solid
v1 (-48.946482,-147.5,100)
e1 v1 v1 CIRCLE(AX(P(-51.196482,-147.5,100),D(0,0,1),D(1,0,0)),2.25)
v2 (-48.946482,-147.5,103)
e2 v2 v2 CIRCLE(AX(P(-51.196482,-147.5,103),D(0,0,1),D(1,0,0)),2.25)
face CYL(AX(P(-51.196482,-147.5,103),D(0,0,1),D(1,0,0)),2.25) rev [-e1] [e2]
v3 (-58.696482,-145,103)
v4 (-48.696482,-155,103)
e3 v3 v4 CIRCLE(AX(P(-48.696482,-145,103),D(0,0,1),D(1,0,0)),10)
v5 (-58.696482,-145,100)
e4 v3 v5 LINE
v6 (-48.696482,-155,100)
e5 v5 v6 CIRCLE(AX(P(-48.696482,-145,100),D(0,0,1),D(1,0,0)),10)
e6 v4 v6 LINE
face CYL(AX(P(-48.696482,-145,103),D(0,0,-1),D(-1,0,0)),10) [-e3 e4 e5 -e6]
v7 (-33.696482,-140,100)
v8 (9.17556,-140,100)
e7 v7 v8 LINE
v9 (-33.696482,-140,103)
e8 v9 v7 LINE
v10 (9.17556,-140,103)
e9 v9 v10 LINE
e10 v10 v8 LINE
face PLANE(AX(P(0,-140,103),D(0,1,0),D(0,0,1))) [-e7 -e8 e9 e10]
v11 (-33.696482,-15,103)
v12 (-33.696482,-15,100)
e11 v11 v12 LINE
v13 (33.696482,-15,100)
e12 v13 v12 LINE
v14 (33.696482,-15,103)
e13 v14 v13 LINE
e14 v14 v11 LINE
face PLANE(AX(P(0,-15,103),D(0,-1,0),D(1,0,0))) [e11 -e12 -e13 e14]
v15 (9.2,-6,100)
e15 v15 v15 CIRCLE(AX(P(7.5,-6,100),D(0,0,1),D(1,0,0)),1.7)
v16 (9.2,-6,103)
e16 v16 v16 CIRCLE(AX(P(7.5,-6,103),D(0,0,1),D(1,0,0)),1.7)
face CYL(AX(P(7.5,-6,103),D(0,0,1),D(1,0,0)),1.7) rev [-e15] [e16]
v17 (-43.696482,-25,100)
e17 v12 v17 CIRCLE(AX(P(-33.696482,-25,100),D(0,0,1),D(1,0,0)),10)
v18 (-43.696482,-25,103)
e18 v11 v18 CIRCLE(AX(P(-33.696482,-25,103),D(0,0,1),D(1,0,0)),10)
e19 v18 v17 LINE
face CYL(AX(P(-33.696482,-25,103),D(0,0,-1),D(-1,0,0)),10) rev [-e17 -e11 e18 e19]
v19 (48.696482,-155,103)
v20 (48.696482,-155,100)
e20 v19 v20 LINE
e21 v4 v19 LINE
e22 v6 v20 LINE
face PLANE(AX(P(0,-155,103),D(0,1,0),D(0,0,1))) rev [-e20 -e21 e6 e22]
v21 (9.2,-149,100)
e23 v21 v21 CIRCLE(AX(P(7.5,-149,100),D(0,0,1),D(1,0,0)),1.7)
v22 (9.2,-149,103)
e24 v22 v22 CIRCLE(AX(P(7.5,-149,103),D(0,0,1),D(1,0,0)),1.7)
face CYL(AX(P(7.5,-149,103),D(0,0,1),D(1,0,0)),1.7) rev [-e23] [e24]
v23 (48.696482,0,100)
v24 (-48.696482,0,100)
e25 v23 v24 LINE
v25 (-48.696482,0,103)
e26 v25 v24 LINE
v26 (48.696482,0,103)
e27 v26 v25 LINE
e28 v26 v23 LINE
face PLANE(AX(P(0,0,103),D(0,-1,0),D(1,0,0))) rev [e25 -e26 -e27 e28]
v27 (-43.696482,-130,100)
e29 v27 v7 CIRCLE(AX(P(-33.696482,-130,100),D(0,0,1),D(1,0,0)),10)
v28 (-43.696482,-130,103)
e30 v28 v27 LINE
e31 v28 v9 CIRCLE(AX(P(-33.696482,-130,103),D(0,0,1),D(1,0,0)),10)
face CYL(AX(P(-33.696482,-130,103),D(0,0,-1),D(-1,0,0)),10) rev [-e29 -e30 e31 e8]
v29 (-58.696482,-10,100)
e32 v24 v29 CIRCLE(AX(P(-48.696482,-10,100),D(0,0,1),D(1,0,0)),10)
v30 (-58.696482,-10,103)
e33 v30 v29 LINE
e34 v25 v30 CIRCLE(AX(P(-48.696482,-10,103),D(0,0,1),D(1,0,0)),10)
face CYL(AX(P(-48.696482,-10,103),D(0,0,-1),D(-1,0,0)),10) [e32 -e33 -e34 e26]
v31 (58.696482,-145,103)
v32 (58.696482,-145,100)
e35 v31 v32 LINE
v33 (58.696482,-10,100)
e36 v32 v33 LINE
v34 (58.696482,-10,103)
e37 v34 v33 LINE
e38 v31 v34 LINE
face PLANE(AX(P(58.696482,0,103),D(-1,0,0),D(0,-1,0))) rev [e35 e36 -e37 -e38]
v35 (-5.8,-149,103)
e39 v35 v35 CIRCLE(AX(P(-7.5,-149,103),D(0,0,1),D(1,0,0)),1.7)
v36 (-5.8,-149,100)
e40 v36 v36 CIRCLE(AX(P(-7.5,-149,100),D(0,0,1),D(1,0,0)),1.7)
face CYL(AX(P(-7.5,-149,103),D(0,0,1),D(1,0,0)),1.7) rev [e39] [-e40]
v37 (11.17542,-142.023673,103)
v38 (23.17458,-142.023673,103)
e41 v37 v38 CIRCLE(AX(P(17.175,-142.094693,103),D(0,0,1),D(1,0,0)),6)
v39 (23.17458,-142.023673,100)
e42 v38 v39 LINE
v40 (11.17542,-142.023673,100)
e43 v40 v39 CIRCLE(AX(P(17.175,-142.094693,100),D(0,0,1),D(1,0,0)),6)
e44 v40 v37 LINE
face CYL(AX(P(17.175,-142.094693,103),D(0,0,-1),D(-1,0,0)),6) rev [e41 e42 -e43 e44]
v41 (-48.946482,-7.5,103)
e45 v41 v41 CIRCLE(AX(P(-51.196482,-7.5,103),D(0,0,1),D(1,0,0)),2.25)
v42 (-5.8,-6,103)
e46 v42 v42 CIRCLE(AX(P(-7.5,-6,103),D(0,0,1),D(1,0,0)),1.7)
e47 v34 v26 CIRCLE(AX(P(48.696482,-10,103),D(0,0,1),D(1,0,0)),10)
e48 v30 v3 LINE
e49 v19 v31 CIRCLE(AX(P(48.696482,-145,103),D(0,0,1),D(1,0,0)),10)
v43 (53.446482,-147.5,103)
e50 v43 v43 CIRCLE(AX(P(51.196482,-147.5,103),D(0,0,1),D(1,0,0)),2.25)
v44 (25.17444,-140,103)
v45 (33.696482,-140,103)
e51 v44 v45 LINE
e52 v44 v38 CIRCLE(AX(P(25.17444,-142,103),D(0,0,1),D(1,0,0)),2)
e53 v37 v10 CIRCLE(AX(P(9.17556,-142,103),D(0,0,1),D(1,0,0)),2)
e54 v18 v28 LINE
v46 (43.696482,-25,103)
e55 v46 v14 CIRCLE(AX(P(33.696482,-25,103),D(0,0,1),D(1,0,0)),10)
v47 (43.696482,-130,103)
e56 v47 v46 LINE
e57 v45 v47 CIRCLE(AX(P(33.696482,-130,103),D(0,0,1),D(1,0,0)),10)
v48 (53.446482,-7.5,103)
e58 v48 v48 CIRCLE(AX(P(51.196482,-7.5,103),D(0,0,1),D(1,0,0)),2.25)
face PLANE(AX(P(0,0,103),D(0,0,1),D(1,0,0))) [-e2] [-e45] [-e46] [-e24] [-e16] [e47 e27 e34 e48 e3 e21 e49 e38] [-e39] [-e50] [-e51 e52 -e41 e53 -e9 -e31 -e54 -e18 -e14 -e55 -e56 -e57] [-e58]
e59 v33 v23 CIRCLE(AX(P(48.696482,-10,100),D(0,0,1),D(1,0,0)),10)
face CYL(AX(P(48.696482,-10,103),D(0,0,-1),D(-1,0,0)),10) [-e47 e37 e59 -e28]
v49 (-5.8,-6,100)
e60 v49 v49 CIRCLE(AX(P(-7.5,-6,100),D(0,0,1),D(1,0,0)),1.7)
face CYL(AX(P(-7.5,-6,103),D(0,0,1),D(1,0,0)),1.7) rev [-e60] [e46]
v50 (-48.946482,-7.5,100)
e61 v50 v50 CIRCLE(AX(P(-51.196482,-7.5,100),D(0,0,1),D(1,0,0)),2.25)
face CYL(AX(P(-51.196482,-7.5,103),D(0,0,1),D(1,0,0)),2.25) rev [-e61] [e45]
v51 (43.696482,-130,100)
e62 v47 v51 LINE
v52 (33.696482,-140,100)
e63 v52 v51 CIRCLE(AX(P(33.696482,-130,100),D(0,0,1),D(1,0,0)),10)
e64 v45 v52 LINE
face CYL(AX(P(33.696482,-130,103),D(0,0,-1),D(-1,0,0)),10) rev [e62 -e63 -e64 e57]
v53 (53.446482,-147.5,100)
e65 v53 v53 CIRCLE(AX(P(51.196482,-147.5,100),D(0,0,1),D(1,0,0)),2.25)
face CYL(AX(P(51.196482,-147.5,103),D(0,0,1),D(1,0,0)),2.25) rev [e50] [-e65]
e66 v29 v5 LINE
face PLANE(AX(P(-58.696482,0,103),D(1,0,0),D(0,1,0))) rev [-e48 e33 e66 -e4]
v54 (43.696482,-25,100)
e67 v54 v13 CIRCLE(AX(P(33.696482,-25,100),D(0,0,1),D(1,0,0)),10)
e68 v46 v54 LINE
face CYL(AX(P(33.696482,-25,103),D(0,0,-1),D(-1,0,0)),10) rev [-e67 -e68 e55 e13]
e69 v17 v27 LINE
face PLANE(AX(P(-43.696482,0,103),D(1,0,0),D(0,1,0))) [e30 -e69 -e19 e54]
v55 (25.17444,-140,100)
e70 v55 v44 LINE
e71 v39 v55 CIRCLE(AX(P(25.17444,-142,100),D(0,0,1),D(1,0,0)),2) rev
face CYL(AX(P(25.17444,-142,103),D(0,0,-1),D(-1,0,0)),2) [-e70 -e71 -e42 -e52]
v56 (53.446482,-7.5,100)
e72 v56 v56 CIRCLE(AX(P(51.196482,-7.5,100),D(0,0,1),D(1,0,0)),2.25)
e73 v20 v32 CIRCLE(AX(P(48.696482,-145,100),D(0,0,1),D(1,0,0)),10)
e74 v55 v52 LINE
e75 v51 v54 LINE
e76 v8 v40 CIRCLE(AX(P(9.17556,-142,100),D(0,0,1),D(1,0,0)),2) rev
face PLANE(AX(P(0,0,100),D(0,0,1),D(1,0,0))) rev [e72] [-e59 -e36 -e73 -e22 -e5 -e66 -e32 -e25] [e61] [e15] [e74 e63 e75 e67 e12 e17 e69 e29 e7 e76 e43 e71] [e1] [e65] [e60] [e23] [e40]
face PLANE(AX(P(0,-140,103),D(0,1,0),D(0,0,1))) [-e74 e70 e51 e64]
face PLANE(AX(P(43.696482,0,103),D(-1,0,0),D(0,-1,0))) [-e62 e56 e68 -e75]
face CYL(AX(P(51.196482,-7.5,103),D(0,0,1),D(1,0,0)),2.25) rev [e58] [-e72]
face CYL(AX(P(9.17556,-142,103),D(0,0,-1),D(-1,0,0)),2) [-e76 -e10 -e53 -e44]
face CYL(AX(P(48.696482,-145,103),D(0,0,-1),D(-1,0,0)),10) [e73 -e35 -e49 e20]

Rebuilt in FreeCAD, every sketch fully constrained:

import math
import FreeCAD as App
import Part
import Sketcher
from FreeCAD import Vector
Q = App.Units.Quantity


def edges_at(feature, points):
    """Names of the edges that pass closest to the given points."""
    edges = feature.Shape.Edges
    near = lambda p: min(range(len(edges)), key=lambda i: edges[i].distToShape(Part.Vertex(*p))[0])
    return sorted({f"Edge{near(p) + 1}" for p in points})

doc = App.newDocument("Part")
params = doc.addObject("Spreadsheet::Sheet", "Params")
for row, (alias, value) in enumerate([
    ("sketch1_radius", "10 mm"),
    ("sketch1_radius2", "6 mm"),
    ("sketch1_height", "135 mm"),
    ("sketch1_height2", "105 mm"),
    ("pad1_length", "3 mm"),
    ("sketch2_diameter", "4.5 mm"),
    ("hole_diameter", "4.5 mm"),
    ("fillet_radius", "2 mm"),
    ("sketch3_diameter", "3.4 mm"),
    ("hole2_diameter", "3.4 mm"),
], start=1):
    params.set(f"A{row}", alias)
    params.set(f"B{row}", "=" + value)
    params.setAlias(f"B{row}", alias)

body = doc.addObject("PartDesign::Body", "Body")

sketch1 = body.newObject("Sketcher::SketchObject", "Sketch")
sketch1.AttachmentSupport = (doc.getObject("XY_Plane"), [""])
sketch1.MapMode = "FlatFace"
sketch1.AttachmentOffset = App.Placement(Vector(0, 0, 100), App.Rotation())
sketch1.addGeometry([
    Part.ArcOfCircle(Part.Circle(Vector(-48.7, -10, 0), Vector(0, 0, 1), 10), math.radians(90), math.radians(180)),
    Part.LineSegment(Vector(-58.7, -10, 0), Vector(-58.7, -145, 0)),
    Part.ArcOfCircle(Part.Circle(Vector(-48.7, -145, 0), Vector(0, 0, 1), 10), math.radians(180), math.radians(270)),
    Part.LineSegment(Vector(-48.7, -155, 0), Vector(48.7, -155, 0)),
    Part.ArcOfCircle(Part.Circle(Vector(48.7, -145, 0), Vector(0, 0, 1), 10), math.radians(-90), math.radians(0)),
    Part.LineSegment(Vector(58.7, -145, 0), Vector(58.7, -10, 0)),
    Part.ArcOfCircle(Part.Circle(Vector(48.7, -10, 0), Vector(0, 0, 1), 10), math.radians(0), math.radians(90)),
    Part.LineSegment(Vector(48.7, 0, 0), Vector(-48.7, 0, 0)),
    Part.ArcOfCircle(Part.Circle(Vector(-33.7, -130, 0), Vector(0, 0, 1), 10), math.radians(180), math.radians(270)),
    Part.LineSegment(Vector(-43.7, -130, 0), Vector(-43.7, -25, 0)),
    Part.ArcOfCircle(Part.Circle(Vector(-33.7, -25, 0), Vector(0, 0, 1), 10), math.radians(90), math.radians(180)),
    Part.LineSegment(Vector(-33.7, -15, 0), Vector(33.7, -15, 0)),
    Part.ArcOfCircle(Part.Circle(Vector(33.7, -25, 0), Vector(0, 0, 1), 10), math.radians(0), math.radians(90)),
    Part.LineSegment(Vector(43.7, -25, 0), Vector(43.7, -130, 0)),
    Part.ArcOfCircle(Part.Circle(Vector(33.7, -130, 0), Vector(0, 0, 1), 10), math.radians(-90), math.radians(0)),
    Part.LineSegment(Vector(33.7, -140, 0), Vector(22.8, -140, 0)),
    Part.ArcOfCircle(Part.Circle(Vector(17.2, -142.1, 0), Vector(0, 0, 1), 6), math.radians(0), math.radians(20)),
    Part.ArcOfCircle(Part.Circle(Vector(17.2, -142.1, 0), Vector(0, 0, 1), 6), math.radians(160), math.radians(360)),
    Part.LineSegment(Vector(11.6, -140, 0), Vector(-33.7, -140, 0)),
], False)
sketch1.addConstraint([
    Sketcher.Constraint("Tangent", 0, 2, 1, 1),
    Sketcher.Constraint("Tangent", 1, 2, 2, 1),
    Sketcher.Constraint("Tangent", 2, 2, 3, 1),
    Sketcher.Constraint("Tangent", 3, 2, 4, 1),
    Sketcher.Constraint("Tangent", 4, 2, 5, 1),
    Sketcher.Constraint("Tangent", 5, 2, 6, 1),
    Sketcher.Constraint("Tangent", 6, 2, 7, 1),
    Sketcher.Constraint("Tangent", 7, 2, 0, 1),
    Sketcher.Constraint("Tangent", 8, 1, 9, 1),
    Sketcher.Constraint("Tangent", 9, 2, 10, 2),
    Sketcher.Constraint("Tangent", 10, 1, 11, 1),
    Sketcher.Constraint("Tangent", 11, 2, 12, 2),
    Sketcher.Constraint("Tangent", 12, 1, 13, 1),
    Sketcher.Constraint("Tangent", 13, 2, 14, 2),
    Sketcher.Constraint("Tangent", 14, 1, 15, 1),
    Sketcher.Constraint("Coincident", 15, 2, 16, 2),
    Sketcher.Constraint("Tangent", 16, 1, 17, 2),
    Sketcher.Constraint("Coincident", 17, 1, 18, 1),
    Sketcher.Constraint("Tangent", 18, 2, 8, 2),
    Sketcher.Constraint("Vertical", 1),
    Sketcher.Constraint("Horizontal", 3),
    Sketcher.Constraint("Vertical", 5),
    Sketcher.Constraint("Horizontal", 7),
    Sketcher.Constraint("Vertical", 9),
    Sketcher.Constraint("Horizontal", 11),
    Sketcher.Constraint("Vertical", 13),
    Sketcher.Constraint("Horizontal", 15),
    Sketcher.Constraint("Horizontal", 18),
    Sketcher.Constraint("Equal", 0, 2),
    Sketcher.Constraint("Equal", 2, 4),
    Sketcher.Constraint("Equal", 4, 6),
    Sketcher.Constraint("Equal", 6, 8),
    Sketcher.Constraint("Equal", 8, 10),
    Sketcher.Constraint("Equal", 10, 12),
    Sketcher.Constraint("Equal", 12, 14),
    Sketcher.Constraint("Equal", 16, 17),
    Sketcher.Constraint("Symmetric", 6, 2, 7, 2, -1, 1),
    Sketcher.Constraint("Symmetric", 8, 3, 14, 3, -2),
    Sketcher.Constraint("Horizontal", 17, 3, 16, 1),
    Sketcher.Constraint("Radius", 0, Q("10 mm")),
    Sketcher.Constraint("Radius", 16, Q("6 mm")),
    Sketcher.Constraint("DistanceY", 1, 2, 1, 1, Q("135 mm")),
    Sketcher.Constraint("DistanceY", 9, 1, 9, 2, Q("105 mm")),
    Sketcher.Constraint("DistanceY", 8, 3, -1, 1, Q("130 mm")),
    Sketcher.Constraint("DistanceX", 2, 3, 8, 3, Q("15 mm")),
    Sketcher.Constraint("DistanceX", -1, 1, 16, 3, Q("17.175 mm")),
    Sketcher.Constraint("DistanceX", 3, 1, 3, 2, Q("97.392963 mm")),
    Sketcher.Constraint("DistanceX", 15, 2, 15, 1, Q("10.899003 mm")),
])
sketch1.setExpression("Constraints[39]", "Params.sketch1_radius")
sketch1.setExpression("Constraints[40]", "Params.sketch1_radius2")
sketch1.setExpression("Constraints[41]", "Params.sketch1_height")
sketch1.setExpression("Constraints[42]", "Params.sketch1_height2")
pad1 = body.newObject("PartDesign::Pad", "Pad")
pad1.Profile = sketch1
pad1.setExpression("Length", "Params.pad1_length")

sketch2 = body.newObject("Sketcher::SketchObject", "Sketch001")
sketch2.AttachmentSupport = (doc.getObject("XY_Plane"), [""])
sketch2.MapMode = "FlatFace"
sketch2.AttachmentOffset = App.Placement(Vector(0, 0, 103), App.Rotation())
sketch2.addGeometry([
    Part.Circle(Vector(-51.2, -7.5, 0), Vector(0, 0, 1), 2.2),
    Part.Circle(Vector(51.2, -7.5, 0), Vector(0, 0, 1), 2.2),
    Part.Circle(Vector(51.2, -147.5, 0), Vector(0, 0, 1), 2.2),
    Part.Circle(Vector(-51.2, -147.5, 0), Vector(0, 0, 1), 2.2),
], False)
sketch2.addConstraint([
    Sketcher.Constraint("Equal", 0, 1),
    Sketcher.Constraint("Equal", 1, 2),
    Sketcher.Constraint("Equal", 2, 3),
    Sketcher.Constraint("Symmetric", 0, 3, 1, 3, -2),
    Sketcher.Constraint("Symmetric", 2, 3, 3, 3, -2),
    Sketcher.Constraint("Vertical", 1, 3, 2, 3),
    Sketcher.Constraint("Diameter", 0, Q("4.5 mm")),
    Sketcher.Constraint("DistanceY", 2, 3, 1, 3, Q("140 mm")),
    Sketcher.Constraint("DistanceY", 0, 3, -1, 1, Q("7.5 mm")),
    Sketcher.Constraint("DistanceX", 0, 3, -1, 1, Q("51.196482 mm")),
])
sketch2.setExpression("Constraints[6]", "Params.sketch2_diameter")
doc.recompute()
hole = body.newObject("PartDesign::Hole", "Hole")
hole.Profile = sketch2
hole.ThreadType = "None"
hole.setExpression("Diameter", "Params.hole_diameter")
hole.DepthType = "ThroughAll"
doc.recompute()

fillet = body.newObject("PartDesign::Fillet", "Fillet")
fillet.Base = (hole, edges_at(hole, [(22.797, -140, 101.5), (11.553, -140, 101.5)]))
fillet.setExpression("Radius", "Params.fillet_radius")

sketch3 = body.newObject("Sketcher::SketchObject", "Sketch002")
sketch3.AttachmentSupport = (doc.getObject("XY_Plane"), [""])
sketch3.MapMode = "FlatFace"
sketch3.AttachmentOffset = App.Placement(Vector(0, 0, 103), App.Rotation())
sketch3.addGeometry([
    Part.Circle(Vector(-7.5, -6, 0), Vector(0, 0, 1), 1.7),
    Part.Circle(Vector(7.5, -6, 0), Vector(0, 0, 1), 1.7),
    Part.Circle(Vector(-7.5, -149, 0), Vector(0, 0, 1), 1.7),
    Part.Circle(Vector(7.5, -149, 0), Vector(0, 0, 1), 1.7),
], False)
sketch3.addConstraint([
    Sketcher.Constraint("Equal", 0, 1),
    Sketcher.Constraint("Equal", 1, 2),
    Sketcher.Constraint("Equal", 2, 3),
    Sketcher.Constraint("Symmetric", 0, 3, 1, 3, -2),
    Sketcher.Constraint("Symmetric", 2, 3, 3, 3, -2),
    Sketcher.Constraint("Vertical", 0, 3, 2, 3),
    Sketcher.Constraint("Diameter", 0, Q("3.4 mm")),
    Sketcher.Constraint("DistanceY", 0, 3, -1, 1, Q("6 mm")),
    Sketcher.Constraint("DistanceY", 2, 3, -1, 1, Q("149 mm")),
    Sketcher.Constraint("DistanceX", 0, 3, 1, 3, Q("15 mm")),
])
sketch3.setExpression("Constraints[6]", "Params.sketch3_diameter")
doc.recompute()
hole2 = body.newObject("PartDesign::Hole", "Hole001")
hole2.Profile = sketch3
hole2.ThreadType = "None"
hole2.setExpression("Diameter", "Params.hole2_diameter")
hole2.DepthType = "ThroughAll"

doc.recompute()
